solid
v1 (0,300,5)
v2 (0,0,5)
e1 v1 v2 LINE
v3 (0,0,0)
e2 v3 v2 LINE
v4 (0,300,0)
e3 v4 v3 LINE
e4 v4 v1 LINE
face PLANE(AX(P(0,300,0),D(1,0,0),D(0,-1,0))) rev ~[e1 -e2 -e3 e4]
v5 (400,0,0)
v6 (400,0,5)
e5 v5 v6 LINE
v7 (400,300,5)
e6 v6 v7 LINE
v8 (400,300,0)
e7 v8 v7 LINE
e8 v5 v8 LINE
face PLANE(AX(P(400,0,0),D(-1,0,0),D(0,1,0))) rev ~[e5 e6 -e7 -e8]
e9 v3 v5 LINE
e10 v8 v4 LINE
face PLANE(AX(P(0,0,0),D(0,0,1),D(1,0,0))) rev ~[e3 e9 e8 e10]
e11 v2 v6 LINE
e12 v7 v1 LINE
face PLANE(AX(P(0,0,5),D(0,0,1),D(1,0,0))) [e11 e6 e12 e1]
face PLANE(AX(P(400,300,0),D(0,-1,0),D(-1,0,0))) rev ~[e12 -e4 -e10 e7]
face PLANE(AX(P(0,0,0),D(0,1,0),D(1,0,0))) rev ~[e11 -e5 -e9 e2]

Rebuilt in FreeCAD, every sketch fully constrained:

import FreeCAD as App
import Part
import Sketcher

V = App.Vector

doc = App.newDocument("Part")
body = doc.addObject("PartDesign::Body", "Body")

# Sketch on XY plane
sketch1 = body.newObject("Sketcher::SketchObject", "Sketch")
sketch1.AttachmentSupport = (doc.getObject("XY_Plane"), [""])
sketch1.MapMode = "FlatFace"
sketch1.addGeometry(Part.LineSegment(V(0, 300, 0), V(0, 0, 0)), False)
sketch1.addGeometry(Part.LineSegment(V(0, 0, 0), V(400, 0, 0)), False)
sketch1.addGeometry(Part.LineSegment(V(400, 0, 0), V(400, 300, 0)), False)
sketch1.addGeometry(Part.LineSegment(V(400, 300, 0), V(0, 300, 0)), False)
sketch1.addConstraint(Sketcher.Constraint("Coincident", 0, 2, 1, 1))
sketch1.addConstraint(Sketcher.Constraint("Coincident", 1, 2, 2, 1))
sketch1.addConstraint(Sketcher.Constraint("Coincident", 2, 2, 3, 1))
sketch1.addConstraint(Sketcher.Constraint("Coincident", 3, 2, 0, 1))
sketch1.addConstraint(Sketcher.Constraint("Vertical", 0))
sketch1.addConstraint(Sketcher.Constraint("Horizontal", 1))
sketch1.addConstraint(Sketcher.Constraint("Vertical", 2))
sketch1.addConstraint(Sketcher.Constraint("Horizontal", 3))
sketch1.addConstraint(Sketcher.Constraint("Coincident", 0, 2, -1, 1))
sketch1.addConstraint(Sketcher.Constraint("DistanceX", 1, 1, 1, 2, 400.0))
sketch1.addConstraint(Sketcher.Constraint("DistanceY", 0, 2, 0, 1, 300.0))
pad1 = body.newObject("PartDesign::Pad", "Pad")
pad1.Profile = sketch1
pad1.Length = 5

doc.recompute()
